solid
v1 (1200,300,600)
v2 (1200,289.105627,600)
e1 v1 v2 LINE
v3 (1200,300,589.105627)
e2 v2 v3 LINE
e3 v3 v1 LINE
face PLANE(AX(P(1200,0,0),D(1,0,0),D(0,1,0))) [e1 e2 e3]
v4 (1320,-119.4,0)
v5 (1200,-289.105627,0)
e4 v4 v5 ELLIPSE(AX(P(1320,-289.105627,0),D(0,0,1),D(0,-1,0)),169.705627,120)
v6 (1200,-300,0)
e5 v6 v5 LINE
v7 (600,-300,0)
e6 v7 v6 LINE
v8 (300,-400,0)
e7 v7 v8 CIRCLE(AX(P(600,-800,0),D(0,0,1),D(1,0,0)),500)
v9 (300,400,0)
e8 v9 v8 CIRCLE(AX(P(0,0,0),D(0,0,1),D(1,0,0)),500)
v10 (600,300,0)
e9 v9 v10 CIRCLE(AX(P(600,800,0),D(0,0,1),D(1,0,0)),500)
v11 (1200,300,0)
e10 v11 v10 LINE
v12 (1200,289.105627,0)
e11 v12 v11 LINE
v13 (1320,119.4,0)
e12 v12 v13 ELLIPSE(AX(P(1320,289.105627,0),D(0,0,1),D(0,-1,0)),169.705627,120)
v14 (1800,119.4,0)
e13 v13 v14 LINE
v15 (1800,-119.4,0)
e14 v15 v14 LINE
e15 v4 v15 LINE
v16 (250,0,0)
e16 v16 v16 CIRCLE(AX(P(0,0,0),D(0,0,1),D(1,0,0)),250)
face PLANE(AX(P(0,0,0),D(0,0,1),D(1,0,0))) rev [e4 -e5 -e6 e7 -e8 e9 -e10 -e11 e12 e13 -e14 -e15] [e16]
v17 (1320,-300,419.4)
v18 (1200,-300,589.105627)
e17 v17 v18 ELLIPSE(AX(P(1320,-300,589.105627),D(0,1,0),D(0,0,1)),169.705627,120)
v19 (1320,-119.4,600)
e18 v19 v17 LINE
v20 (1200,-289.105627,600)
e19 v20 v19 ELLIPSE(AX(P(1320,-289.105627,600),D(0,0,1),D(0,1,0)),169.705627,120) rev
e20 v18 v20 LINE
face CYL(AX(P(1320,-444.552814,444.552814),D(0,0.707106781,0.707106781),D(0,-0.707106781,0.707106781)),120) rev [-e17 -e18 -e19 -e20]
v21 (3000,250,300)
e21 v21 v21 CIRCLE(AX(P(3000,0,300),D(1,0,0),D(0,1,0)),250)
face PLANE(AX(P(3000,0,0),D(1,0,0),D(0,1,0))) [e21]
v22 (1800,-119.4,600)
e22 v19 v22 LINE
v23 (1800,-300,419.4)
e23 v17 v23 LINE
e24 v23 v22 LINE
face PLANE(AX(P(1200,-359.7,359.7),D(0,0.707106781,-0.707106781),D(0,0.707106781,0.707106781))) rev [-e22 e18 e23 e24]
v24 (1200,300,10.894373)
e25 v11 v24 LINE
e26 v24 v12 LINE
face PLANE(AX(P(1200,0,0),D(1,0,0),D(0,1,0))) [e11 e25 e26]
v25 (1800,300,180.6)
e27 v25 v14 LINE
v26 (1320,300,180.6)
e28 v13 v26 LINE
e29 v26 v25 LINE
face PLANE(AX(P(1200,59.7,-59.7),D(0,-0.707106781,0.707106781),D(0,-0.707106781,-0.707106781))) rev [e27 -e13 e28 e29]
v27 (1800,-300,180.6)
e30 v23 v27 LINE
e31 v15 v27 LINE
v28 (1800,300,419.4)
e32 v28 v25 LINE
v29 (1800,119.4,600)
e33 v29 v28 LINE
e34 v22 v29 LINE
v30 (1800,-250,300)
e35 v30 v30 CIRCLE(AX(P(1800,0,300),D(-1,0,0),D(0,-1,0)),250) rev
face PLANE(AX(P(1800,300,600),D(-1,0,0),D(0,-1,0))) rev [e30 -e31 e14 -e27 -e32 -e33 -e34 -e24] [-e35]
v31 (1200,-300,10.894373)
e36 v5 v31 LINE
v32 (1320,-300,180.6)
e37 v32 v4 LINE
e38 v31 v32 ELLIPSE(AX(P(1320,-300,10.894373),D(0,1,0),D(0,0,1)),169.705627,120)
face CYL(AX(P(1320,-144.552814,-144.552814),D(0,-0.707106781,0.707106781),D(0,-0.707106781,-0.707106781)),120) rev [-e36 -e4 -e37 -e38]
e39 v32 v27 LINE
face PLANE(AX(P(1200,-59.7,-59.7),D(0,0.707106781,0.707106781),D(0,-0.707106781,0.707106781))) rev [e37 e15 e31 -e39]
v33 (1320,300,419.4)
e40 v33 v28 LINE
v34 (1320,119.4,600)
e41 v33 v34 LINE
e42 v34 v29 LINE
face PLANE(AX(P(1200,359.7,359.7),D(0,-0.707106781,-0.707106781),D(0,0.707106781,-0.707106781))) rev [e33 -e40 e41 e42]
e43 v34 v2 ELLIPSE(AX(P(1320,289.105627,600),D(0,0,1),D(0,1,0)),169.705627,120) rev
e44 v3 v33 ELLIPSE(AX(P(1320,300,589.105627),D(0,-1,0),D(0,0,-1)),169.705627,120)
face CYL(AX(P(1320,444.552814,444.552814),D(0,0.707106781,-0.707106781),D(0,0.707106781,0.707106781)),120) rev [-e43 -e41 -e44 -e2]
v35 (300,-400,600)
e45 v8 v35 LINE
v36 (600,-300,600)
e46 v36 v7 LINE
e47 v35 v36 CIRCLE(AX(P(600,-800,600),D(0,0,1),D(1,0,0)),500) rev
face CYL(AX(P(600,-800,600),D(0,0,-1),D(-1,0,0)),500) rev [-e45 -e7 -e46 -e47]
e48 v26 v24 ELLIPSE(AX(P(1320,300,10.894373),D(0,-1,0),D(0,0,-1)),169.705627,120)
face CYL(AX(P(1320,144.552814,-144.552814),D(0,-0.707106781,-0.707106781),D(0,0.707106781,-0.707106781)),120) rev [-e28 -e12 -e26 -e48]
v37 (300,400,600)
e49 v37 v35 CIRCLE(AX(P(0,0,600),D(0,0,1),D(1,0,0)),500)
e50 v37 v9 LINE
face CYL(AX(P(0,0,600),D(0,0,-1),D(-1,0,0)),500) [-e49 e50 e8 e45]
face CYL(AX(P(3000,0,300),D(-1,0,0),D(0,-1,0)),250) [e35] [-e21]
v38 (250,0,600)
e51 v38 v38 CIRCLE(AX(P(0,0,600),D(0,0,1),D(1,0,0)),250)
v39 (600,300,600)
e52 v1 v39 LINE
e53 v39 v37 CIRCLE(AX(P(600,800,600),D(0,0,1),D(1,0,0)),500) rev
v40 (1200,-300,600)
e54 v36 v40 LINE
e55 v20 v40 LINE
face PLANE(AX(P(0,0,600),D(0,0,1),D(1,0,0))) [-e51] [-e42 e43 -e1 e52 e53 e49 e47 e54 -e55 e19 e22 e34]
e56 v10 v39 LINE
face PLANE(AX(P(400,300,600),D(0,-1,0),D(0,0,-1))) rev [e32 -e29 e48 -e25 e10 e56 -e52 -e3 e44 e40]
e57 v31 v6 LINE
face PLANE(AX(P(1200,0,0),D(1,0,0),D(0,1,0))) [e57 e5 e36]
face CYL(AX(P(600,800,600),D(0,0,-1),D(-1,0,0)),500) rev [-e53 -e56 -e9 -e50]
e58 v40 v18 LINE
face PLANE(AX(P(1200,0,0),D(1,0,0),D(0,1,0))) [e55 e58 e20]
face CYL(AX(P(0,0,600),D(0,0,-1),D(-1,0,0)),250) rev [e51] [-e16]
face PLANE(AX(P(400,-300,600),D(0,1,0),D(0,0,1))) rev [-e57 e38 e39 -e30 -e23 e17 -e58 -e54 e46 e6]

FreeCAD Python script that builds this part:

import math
import FreeCAD as App
import Part
import Sketcher
from FreeCAD import Vector
Q = App.Units.Quantity


def edges_at(feature, points):
    """Names of the edges that pass closest to the given points."""
    edges = feature.Shape.Edges
    near = lambda p: min(range(len(edges)), key=lambda i: edges[i].distToShape(Part.Vertex(*p))[0])
    return sorted({f"Edge{near(p) + 1}" for p in points})


def add_polygon(sketch, points):
    """Adds a closed chain of lines whose ends are joined by coincident constraints."""
    first, n = sketch.GeometryCount, len(points)
    for a, b in zip(points, points[1:] + points[:1]):
        sketch.addGeometry(Part.LineSegment(App.Vector(*a, 0), App.Vector(*b, 0)), False)
    for i in range(n):
        sketch.addConstraint(Sketcher.Constraint("Coincident", first + i, 2, first + (i + 1) % n, 1))

doc = App.newDocument("Part")
body = doc.addObject("PartDesign::Body", "Body")

sketch1 = doc.addObject("Sketcher::SketchObject", "Sketch")
body.addObject(sketch1)
sketch1.AttachmentSupport = (doc.XY_Plane, [""])
sketch1.MapMode = "FlatFace"
sketch1.addGeometry([
    Part.LineSegment(Vector(1800, 300, 0), Vector(400, 300, 0)),
    Part.ArcOfCircle(Part.Circle(Vector(0, 0, 0), Vector(0, 0, 1), 500), math.radians(37), math.radians(323)),
    Part.LineSegment(Vector(400, -300, 0), Vector(1800, -300, 0)),
    Part.LineSegment(Vector(1800, -300, 0), Vector(1800, 300, 0)),
    Part.Circle(Vector(0, 0, 0), Vector(0, 0, 1), 250),
], False)
sketch1.addConstraint([
    Sketcher.Constraint("Coincident", 0, 2, 1, 1),
    Sketcher.Constraint("Coincident", 1, 2, 2, 1),
    Sketcher.Constraint("Coincident", 2, 2, 3, 1),
    Sketcher.Constraint("Coincident", 3, 2, 0, 1),
    Sketcher.Constraint("Horizontal", 0),
    Sketcher.Constraint("Horizontal", 2),
    Sketcher.Constraint("Vertical", 3),
    Sketcher.Constraint("Coincident", 1, 3, -1, 1),
    Sketcher.Constraint("Coincident", 4, 3, -1, 1),
    Sketcher.Constraint("Equal", 0, 2),
    Sketcher.Constraint("Diameter", 4, Q("500 mm")),
    Sketcher.Constraint("Radius", 1, Q("500 mm")),
    Sketcher.Constraint("DistanceX", 0, 2, 0, 1, Q("1400 mm")),
    Sketcher.Constraint("DistanceY", 3, 1, 3, 2, Q("600 mm")),
])
pad1 = doc.addObject("PartDesign::Pad", "Pad")
body.addObject(pad1)
pad1.Profile = sketch1
pad1.Length = 600
doc.recompute()

fillet = doc.addObject("PartDesign::Fillet", "Fillet")
body.addObject(fillet)
fillet.Base = (pad1, edges_at(pad1, [(400, 300, 300)]))
fillet.Radius = 500
doc.recompute()

fillet2 = doc.addObject("PartDesign::Fillet", "Fillet001")
body.addObject(fillet2)
fillet2.Base = (fillet, edges_at(fillet, [(400, -300, 300)]))
fillet2.Radius = 500

sketch2 = doc.addObject("Sketcher::SketchObject", "Sketch001")
body.addObject(sketch2)
sketch2.AttachmentSupport = (doc.YZ_Plane, [""])
sketch2.MapMode = "FlatFace"
sketch2.AttachmentOffset = App.Placement(Vector(0, 0, 1800), App.Rotation())
add_polygon(sketch2, [(119, 600), (300, 419), (300, 600)])
add_polygon(sketch2, [(119, 0), (300, 0), (300, 181)])
add_polygon(sketch2, [(-300, 0), (-119, 0), (-300, 181)])
add_polygon(sketch2, [(-300, 419), (-119, 600), (-300, 600)])
sketch2.addConstraint([
    Sketcher.Constraint("Vertical", 1),
    Sketcher.Constraint("Horizontal", 2),
    Sketcher.Constraint("Horizontal", 3),
    Sketcher.Constraint("Vertical", 4),
    Sketcher.Constraint("Horizontal", 6),
    Sketcher.Constraint("Vertical", 8),
    Sketcher.Constraint("Horizontal", 10),
    Sketcher.Constraint("Vertical", 11),
    Sketcher.Constraint("Symmetric", 5, 2, 6, 2, -1, 1),
    Sketcher.Constraint("Symmetric", 4, 2, 7, 2, -2),
    Sketcher.Constraint("Symmetric", 2, 2, 9, 2, -2),
    Sketcher.Constraint("Symmetric", 0, 2, 11, 2, -2),
    Sketcher.Constraint("PointOnObject", 3, 2, -1),
    Sketcher.Constraint("Perpendicular", 0, 5),
    Sketcher.Constraint("Perpendicular", 5, 7),
    Sketcher.Constraint("Vertical", 1, 2, 3, 2),
    Sketcher.Constraint("Vertical", 2, 2, 5, 2),
    Sketcher.Constraint("DistanceX", 2, 2, 2, 1, Q("180.6 mm")),
    Sketcher.Constraint("DistanceX", -1, 1, 0, 2, Q("300 mm")),
    Sketcher.Constraint("DistanceY", -1, 1, 1, 2, Q("600 mm")),
])
pocket1 = doc.addObject("PartDesign::Pocket", "Pocket")
body.addObject(pocket1)
pocket1.Profile = sketch2
pocket1.Length = 600

sketch3 = doc.addObject("Sketcher::SketchObject", "Sketch002")
body.addObject(sketch3)
sketch3.AttachmentSupport = (doc.YZ_Plane, [""])
sketch3.MapMode = "FlatFace"
sketch3.AttachmentOffset = App.Placement(Vector(0, 0, 1800), App.Rotation())
sketch3.addGeometry(Part.Circle(Vector(0, 300, 0), Vector(0, 0, 1), 250), False)
sketch3.addConstraint([
    Sketcher.Constraint("PointOnObject", 0, 3, -2),
    Sketcher.Constraint("Diameter", 0, Q("500 mm")),
    Sketcher.Constraint("DistanceY", -1, 1, 0, 3, Q("300 mm")),
])
pad2 = doc.addObject("PartDesign::Pad", "Pad001")
body.addObject(pad2)
pad2.Profile = sketch3
pad2.Length = 1200
doc.recompute()

fillet3 = doc.addObject("PartDesign::Fillet", "Fillet002")
body.addObject(fillet3)
fillet3.Base = (pad2, edges_at(pad2, [
    (1200, 209.7, 509.7),
    (1200, 209.7, 90.3),
    (1200, -209.7, 90.3),
    (1200, -209.7, 509.7),
]))
fillet3.Radius = 120

doc.recompute()
